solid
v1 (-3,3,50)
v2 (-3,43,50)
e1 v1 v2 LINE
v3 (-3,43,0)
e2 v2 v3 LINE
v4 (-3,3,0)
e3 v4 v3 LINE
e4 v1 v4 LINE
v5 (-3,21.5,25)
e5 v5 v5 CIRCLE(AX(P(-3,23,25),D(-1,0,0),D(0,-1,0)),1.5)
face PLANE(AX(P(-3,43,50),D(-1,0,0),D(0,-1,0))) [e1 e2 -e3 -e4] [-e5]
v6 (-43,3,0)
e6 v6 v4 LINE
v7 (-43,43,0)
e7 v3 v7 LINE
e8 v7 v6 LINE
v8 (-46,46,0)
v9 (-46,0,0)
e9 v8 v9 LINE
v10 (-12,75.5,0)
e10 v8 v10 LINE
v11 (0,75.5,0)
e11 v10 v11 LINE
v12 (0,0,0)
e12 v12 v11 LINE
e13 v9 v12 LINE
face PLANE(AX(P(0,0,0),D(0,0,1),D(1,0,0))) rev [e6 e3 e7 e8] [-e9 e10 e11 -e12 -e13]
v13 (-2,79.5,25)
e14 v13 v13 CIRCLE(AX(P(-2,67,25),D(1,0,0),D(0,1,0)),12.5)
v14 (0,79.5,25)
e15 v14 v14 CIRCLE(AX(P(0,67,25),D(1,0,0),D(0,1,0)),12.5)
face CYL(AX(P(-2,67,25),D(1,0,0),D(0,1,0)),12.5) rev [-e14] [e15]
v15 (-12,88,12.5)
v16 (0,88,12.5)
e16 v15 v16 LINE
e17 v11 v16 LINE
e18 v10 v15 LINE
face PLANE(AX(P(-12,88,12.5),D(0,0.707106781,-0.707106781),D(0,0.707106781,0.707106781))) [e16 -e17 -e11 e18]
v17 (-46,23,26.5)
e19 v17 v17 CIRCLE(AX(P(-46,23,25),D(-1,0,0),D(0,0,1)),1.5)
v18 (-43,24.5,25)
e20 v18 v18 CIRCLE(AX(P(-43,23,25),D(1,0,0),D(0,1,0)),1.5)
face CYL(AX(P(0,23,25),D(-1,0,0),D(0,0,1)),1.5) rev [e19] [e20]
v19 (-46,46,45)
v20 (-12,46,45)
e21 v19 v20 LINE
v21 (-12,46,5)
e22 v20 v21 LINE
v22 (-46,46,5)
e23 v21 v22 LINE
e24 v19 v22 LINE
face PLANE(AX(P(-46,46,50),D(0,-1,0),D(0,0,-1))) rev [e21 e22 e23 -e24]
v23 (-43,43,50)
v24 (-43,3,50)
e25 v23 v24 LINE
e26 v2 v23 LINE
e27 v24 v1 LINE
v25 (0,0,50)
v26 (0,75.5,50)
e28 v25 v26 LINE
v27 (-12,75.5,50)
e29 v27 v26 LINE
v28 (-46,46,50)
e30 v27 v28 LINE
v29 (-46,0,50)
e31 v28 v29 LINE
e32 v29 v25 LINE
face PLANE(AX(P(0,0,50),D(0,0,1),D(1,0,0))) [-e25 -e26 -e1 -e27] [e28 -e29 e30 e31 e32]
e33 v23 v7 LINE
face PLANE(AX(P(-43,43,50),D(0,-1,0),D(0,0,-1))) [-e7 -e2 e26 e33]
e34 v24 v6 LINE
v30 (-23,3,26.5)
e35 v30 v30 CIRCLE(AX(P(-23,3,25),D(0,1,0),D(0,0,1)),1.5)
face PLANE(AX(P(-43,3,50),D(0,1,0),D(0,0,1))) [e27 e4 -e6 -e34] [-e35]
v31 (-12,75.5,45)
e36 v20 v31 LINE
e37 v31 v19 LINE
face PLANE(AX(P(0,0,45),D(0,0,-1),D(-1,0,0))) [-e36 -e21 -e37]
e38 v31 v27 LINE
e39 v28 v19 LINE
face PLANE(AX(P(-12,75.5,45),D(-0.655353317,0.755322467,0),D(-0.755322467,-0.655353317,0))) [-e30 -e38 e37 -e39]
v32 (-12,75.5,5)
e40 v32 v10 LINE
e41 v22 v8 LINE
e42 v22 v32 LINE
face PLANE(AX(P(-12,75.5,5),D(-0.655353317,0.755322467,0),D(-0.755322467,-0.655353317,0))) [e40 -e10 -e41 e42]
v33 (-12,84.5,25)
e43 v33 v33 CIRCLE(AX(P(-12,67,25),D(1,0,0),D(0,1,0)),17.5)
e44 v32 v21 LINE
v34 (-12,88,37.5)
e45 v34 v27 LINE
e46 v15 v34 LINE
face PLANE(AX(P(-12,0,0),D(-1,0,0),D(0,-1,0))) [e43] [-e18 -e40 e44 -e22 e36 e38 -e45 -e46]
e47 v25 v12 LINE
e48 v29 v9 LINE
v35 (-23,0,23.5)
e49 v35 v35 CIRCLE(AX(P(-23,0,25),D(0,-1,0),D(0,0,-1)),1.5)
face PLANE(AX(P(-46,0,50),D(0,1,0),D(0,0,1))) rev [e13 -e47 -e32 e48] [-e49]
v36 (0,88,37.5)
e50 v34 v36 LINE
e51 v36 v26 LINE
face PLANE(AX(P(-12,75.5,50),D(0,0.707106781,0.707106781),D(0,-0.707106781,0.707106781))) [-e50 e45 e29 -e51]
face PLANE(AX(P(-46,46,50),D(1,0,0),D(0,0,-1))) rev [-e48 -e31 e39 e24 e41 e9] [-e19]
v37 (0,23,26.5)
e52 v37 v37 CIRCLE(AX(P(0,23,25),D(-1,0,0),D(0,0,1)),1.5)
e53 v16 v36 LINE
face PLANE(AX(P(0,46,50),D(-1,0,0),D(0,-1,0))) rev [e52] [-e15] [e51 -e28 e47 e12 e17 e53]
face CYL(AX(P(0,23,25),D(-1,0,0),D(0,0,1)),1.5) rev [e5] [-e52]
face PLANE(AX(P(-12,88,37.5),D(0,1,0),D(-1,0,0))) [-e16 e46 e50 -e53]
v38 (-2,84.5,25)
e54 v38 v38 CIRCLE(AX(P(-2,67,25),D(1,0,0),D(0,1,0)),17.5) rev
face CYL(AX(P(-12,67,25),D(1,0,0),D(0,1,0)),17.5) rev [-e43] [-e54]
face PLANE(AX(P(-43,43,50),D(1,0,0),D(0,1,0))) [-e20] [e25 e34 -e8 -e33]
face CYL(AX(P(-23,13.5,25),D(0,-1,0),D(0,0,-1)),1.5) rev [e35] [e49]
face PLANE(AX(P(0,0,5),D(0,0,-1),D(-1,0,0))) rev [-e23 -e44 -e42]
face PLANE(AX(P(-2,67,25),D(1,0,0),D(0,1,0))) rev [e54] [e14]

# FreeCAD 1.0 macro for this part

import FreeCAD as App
import Part
import Sketcher
from FreeCAD import Vector

doc = App.newDocument("Part")
params = doc.addObject("Spreadsheet::Sheet", "Params")
for row, (alias, value) in enumerate([
    ("sketch1_width", "46 mm"),
    ("sketch1_width2", "40 mm"),
    ("pad1_length", "50 mm"),
    ("sketch2_diameter", "3 mm"),
    ("sketch3_diameter", "3 mm"),
    ("pocket2_length", "13.5 mm"),
    ("sketch4_diameter", "35 mm"),
    ("sketch4_height", "50 mm"),
    ("sketch4_height2", "25 mm"),
    ("sketch4_width", "29.5 mm"),
    ("pad2_length", "12 mm"),
    ("sketch5_diameter", "35 mm"),
    ("sketch5_diameter2", "25 mm"),
    ("pad3_length", "2 mm"),
    ("sketch6_width", "34 mm"),
    ("sketch6_height", "29.5 mm"),
    ("pad4_length", "5 mm"),
    ("sketch7_width", "34 mm"),
    ("sketch7_height", "29.5 mm"),
    ("pad5_length", "5 mm"),
], start=1):
    params.set(f"A{row}", alias)
    params.set(f"B{row}", "=" + value)
    params.setAlias(f"B{row}", alias)

body = doc.addObject("PartDesign::Body", "Body")

# Sketch on XY plane
sketch1 = doc.addObject("Sketcher::SketchObject", "Sketch")
body.addObject(sketch1)
sketch1.AttachmentSupport = (doc.XY_Plane, [""])
sketch1.MapMode = "FlatFace"
sketch1.addGeometry(Part.LineSegment(Vector(-46, 46, 0), Vector(-46, 0, 0)), False)
sketch1.addGeometry(Part.LineSegment(Vector(-46, 0, 0), Vector(0, 0, 0)), False)
sketch1.addGeometry(Part.LineSegment(Vector(0, 0, 0), Vector(0, 46, 0)), False)
sketch1.addGeometry(Part.LineSegment(Vector(0, 46, 0), Vector(-46, 46, 0)), False)
sketch1.addGeometry(Part.LineSegment(Vector(-3, 3, 0), Vector(-43, 3, 0)), False)
sketch1.addGeometry(Part.LineSegment(Vector(-43, 3, 0), Vector(-43, 43, 0)), False)
sketch1.addGeometry(Part.LineSegment(Vector(-43, 43, 0), Vector(-3, 43, 0)), False)
sketch1.addGeometry(Part.LineSegment(Vector(-3, 43, 0), Vector(-3, 3, 0)), False)
sketch1.addConstraint(Sketcher.Constraint("Coincident", 0, 2, 1, 1))
sketch1.addConstraint(Sketcher.Constraint("Coincident", 1, 2, 2, 1))
sketch1.addConstraint(Sketcher.Constraint("Coincident", 2, 2, 3, 1))
sketch1.addConstraint(Sketcher.Constraint("Coincident", 3, 2, 0, 1))
sketch1.addConstraint(Sketcher.Constraint("Coincident", 4, 2, 5, 1))
sketch1.addConstraint(Sketcher.Constraint("Coincident", 5, 2, 6, 1))
sketch1.addConstraint(Sketcher.Constraint("Coincident", 6, 2, 7, 1))
sketch1.addConstraint(Sketcher.Constraint("Coincident", 7, 2, 4, 1))
sketch1.addConstraint(Sketcher.Constraint("Vertical", 0))
sketch1.addConstraint(Sketcher.Constraint("Horizontal", 1))
sketch1.addConstraint(Sketcher.Constraint("Vertical", 2))
sketch1.addConstraint(Sketcher.Constraint("Horizontal", 3))
sketch1.addConstraint(Sketcher.Constraint("Horizontal", 4))
sketch1.addConstraint(Sketcher.Constraint("Vertical", 5))
sketch1.addConstraint(Sketcher.Constraint("Horizontal", 6))
sketch1.addConstraint(Sketcher.Constraint("Vertical", 7))
sketch1.addConstraint(Sketcher.Constraint("Coincident", 1, 2, -1, 1))
sketch1.addConstraint(Sketcher.Constraint("Equal", 3, 0))
sketch1.addConstraint(Sketcher.Constraint("Equal", 6, 5))
sketch1.addConstraint(Sketcher.Constraint("DistanceX", 1, 1, 1, 2, 46.0))
sketch1.addConstraint(Sketcher.Constraint("DistanceX", 4, 2, 4, 1, 40.0))
sketch1.addConstraint(Sketcher.Constraint("DistanceX", 4, 2, -1, 1, 43.0))
sketch1.addConstraint(Sketcher.Constraint("DistanceY", -1, 1, 4, 2, 3.0))
sketch1.setExpression("Constraints[19]", "Params.sketch1_width")
sketch1.setExpression("Constraints[20]", "Params.sketch1_width2")
pad1 = doc.addObject("PartDesign::Pad", "Pad")
body.addObject(pad1)
pad1.Profile = sketch1
pad1.setExpression("Length", "Params.pad1_length")

# Sketch on YZ plane
sketch2 = doc.addObject("Sketcher::SketchObject", "Sketch001")
body.addObject(sketch2)
sketch2.AttachmentSupport = (doc.YZ_Plane, [""])
sketch2.MapMode = "FlatFace"
sketch2.AttachmentOffset = App.Placement(Vector(0, 0, -46), App.Rotation())
sketch2.addGeometry(Part.Circle(Vector(23, 25, 0), Vector(0, 0, 1), 1.5), False)
sketch2.addConstraint(Sketcher.Constraint("Diameter", 0, 3.0))
sketch2.addConstraint(Sketcher.Constraint("DistanceX", -1, 1, 0, 3, 23.0))
sketch2.addConstraint(Sketcher.Constraint("DistanceY", -1, 1, 0, 3, 25.0))
sketch2.setExpression("Constraints[0]", "Params.sketch2_diameter")
pocket1 = doc.addObject("PartDesign::Pocket", "Pocket")
body.addObject(pocket1)
pocket1.Profile = sketch2
pocket1.Type = "ThroughAll"
pocket1.Reversed = True

# Sketch on XZ plane
sketch3 = doc.addObject("Sketcher::SketchObject", "Sketch002")
body.addObject(sketch3)
sketch3.AttachmentSupport = (doc.XZ_Plane, [""])
sketch3.MapMode = "FlatFace"
sketch3.addGeometry(Part.Circle(Vector(-23, 25, 0), Vector(0, 0, 1), 1.5), False)
sketch3.addConstraint(Sketcher.Constraint("Diameter", 0, 3.0))
sketch3.addConstraint(Sketcher.Constraint("DistanceX", 0, 3, -1, 1, 23.0))
sketch3.addConstraint(Sketcher.Constraint("DistanceY", -1, 1, 0, 3, 25.0))
sketch3.setExpression("Constraints[0]", "Params.sketch3_diameter")
pocket2 = doc.addObject("PartDesign::Pocket", "Pocket001")
body.addObject(pocket2)
pocket2.Profile = sketch3
pocket2.setExpression("Length", "Params.pocket2_length")

# Sketch on YZ plane
sketch4 = doc.addObject("Sketcher::SketchObject", "Sketch003")
body.addObject(sketch4)
sketch4.AttachmentSupport = (doc.YZ_Plane, [""])
sketch4.MapMode = "FlatFace"
sketch4.addGeometry(Part.LineSegment(Vector(76, 50, 0), Vector(46, 50, 0)), False)
sketch4.addGeometry(Part.LineSegment(Vector(46, 50, 0), Vector(46, 0, 0)), False)
sketch4.addGeometry(Part.LineSegment(Vector(46, 0, 0), Vector(76, 0, 0)), False)
sketch4.addGeometry(Part.LineSegment(Vector(76, 0, 0), Vector(88, 12, 0)), False)
sketch4.addGeometry(Part.LineSegment(Vector(88, 12, 0), Vector(88, 38, 0)), False)
sketch4.addGeometry(Part.LineSegment(Vector(88, 38, 0), Vector(76, 50, 0)), False)
sketch4.addGeometry(Part.Circle(Vector(67, 25, 0), Vector(0, 0, 1), 18), False)
sketch4.addConstraint(Sketcher.Constraint("Coincident", 0, 2, 1, 1))
sketch4.addConstraint(Sketcher.Constraint("Coincident", 1, 2, 2, 1))
sketch4.addConstraint(Sketcher.Constraint("Coincident", 2, 2, 3, 1))
sketch4.addConstraint(Sketcher.Constraint("Coincident", 3, 2, 4, 1))
sketch4.addConstraint(Sketcher.Constraint("Coincident", 4, 2, 5, 1))
sketch4.addConstraint(Sketcher.Constraint("Coincident", 5, 2, 0, 1))
sketch4.addConstraint(Sketcher.Constraint("Horizontal", 0))
sketch4.addConstraint(Sketcher.Constraint("Vertical", 1))
sketch4.addConstraint(Sketcher.Constraint("Horizontal", 2))
sketch4.addConstraint(Sketcher.Constraint("Vertical", 4))
sketch4.addConstraint(Sketcher.Constraint("PointOnObject", 1, 2, -1))
sketch4.addConstraint(Sketcher.Constraint("Perpendicular", 3, 5))
sketch4.addConstraint(Sketcher.Constraint("Vertical", 2, 2, 5, 2))
sketch4.addConstraint(Sketcher.Constraint("Equal", 3, 5))
sketch4.addConstraint(Sketcher.Constraint("Diameter", 6, 35.0))
sketch4.addConstraint(Sketcher.Constraint("DistanceY", 1, 2, 1, 1, 50.0))
sketch4.addConstraint(Sketcher.Constraint("DistanceY", 4, 1, 4, 2, 25.0))
sketch4.addConstraint(Sketcher.Constraint("DistanceX", 0, 2, 0, 1, 29.5))
sketch4.addConstraint(Sketcher.Constraint("DistanceX", -1, 1, 6, 3, 67.0))
sketch4.addConstraint(Sketcher.Constraint("DistanceY", -1, 1, 6, 3, 25.0))
sketch4.addConstraint(Sketcher.Constraint("DistanceX", -1, 1, 0, 2, 46.0))
sketch4.setExpression("Constraints[14]", "Params.sketch4_diameter")
sketch4.setExpression("Constraints[15]", "Params.sketch4_height")
sketch4.setExpression("Constraints[16]", "Params.sketch4_height2")
sketch4.setExpression("Constraints[17]", "Params.sketch4_width")
pad2 = doc.addObject("PartDesign::Pad", "Pad001")
body.addObject(pad2)
pad2.Profile = sketch4
pad2.setExpression("Length", "Params.pad2_length")
pad2.Reversed = True

# Sketch on YZ plane
sketch5 = doc.addObject("Sketcher::SketchObject", "Sketch004")
body.addObject(sketch5)
sketch5.AttachmentSupport = (doc.YZ_Plane, [""])
sketch5.MapMode = "FlatFace"
sketch5.addGeometry(Part.Circle(Vector(67, 25, 0), Vector(0, 0, 1), 18), False)
sketch5.addGeometry(Part.Circle(Vector(67, 25, 0), Vector(0, 0, 1), 12), False)
sketch5.addConstraint(Sketcher.Constraint("Coincident", 1, 3, 0, 3))
sketch5.addConstraint(Sketcher.Constraint("Diameter", 0, 35.0))
sketch5.addConstraint(Sketcher.Constraint("Diameter", 1, 25.0))
sketch5.addConstraint(Sketcher.Constraint("DistanceX", -1, 1, 0, 3, 67.0))
sketch5.addConstraint(Sketcher.Constraint("DistanceY", -1, 1, 0, 3, 25.0))
sketch5.setExpression("Constraints[1]", "Params.sketch5_diameter")
sketch5.setExpression("Constraints[2]", "Params.sketch5_diameter2")
pad3 = doc.addObject("PartDesign::Pad", "Pad002")
body.addObject(pad3)
pad3.Profile = sketch5
pad3.setExpression("Length", "Params.pad3_length")
pad3.Reversed = True

# Sketch on XY plane
sketch6 = doc.addObject("Sketcher::SketchObject", "Sketch005")
body.addObject(sketch6)
sketch6.AttachmentSupport = (doc.XY_Plane, [""])
sketch6.MapMode = "FlatFace"
sketch6.addGeometry(Part.LineSegment(Vector(-46, 46, 0), Vector(-12, 76, 0)), False)
sketch6.addGeometry(Part.LineSegment(Vector(-12, 76, 0), Vector(-12, 46, 0)), False)
sketch6.addGeometry(Part.LineSegment(Vector(-12, 46, 0), Vector(-46, 46, 0)), False)
sketch6.addConstraint(Sketcher.Constraint("Coincident", 0, 2, 1, 1))
sketch6.addConstraint(Sketcher.Constraint("Coincident", 1, 2, 2, 1))
sketch6.addConstraint(Sketcher.Constraint("Coincident", 2, 2, 0, 1))
sketch6.addConstraint(Sketcher.Constraint("Vertical", 1))
sketch6.addConstraint(Sketcher.Constraint("Horizontal", 2))
sketch6.addConstraint(Sketcher.Constraint("DistanceX", 2, 2, 2, 1, 34.0))
sketch6.addConstraint(Sketcher.Constraint("DistanceY", 1, 2, 1, 1, 29.5))
sketch6.addConstraint(Sketcher.Constraint("DistanceX", 0, 2, -1, 1, 12.0))
sketch6.addConstraint(Sketcher.Constraint("DistanceY", -1, 1, 1, 2, 46.0))
sketch6.setExpression("Constraints[5]", "Params.sketch6_width")
sketch6.setExpression("Constraints[6]", "Params.sketch6_height")
pad4 = doc.addObject("PartDesign::Pad", "Pad003")
body.addObject(pad4)
pad4.Profile = sketch6
pad4.setExpression("Length", "Params.pad4_length")

# Sketch on XY plane
sketch7 = doc.addObject("Sketcher::SketchObject", "Sketch006")
body.addObject(sketch7)
sketch7.AttachmentSupport = (doc.XY_Plane, [""])
sketch7.MapMode = "FlatFace"
sketch7.AttachmentOffset = App.Placement(Vector(0, 0, 50), App.Rotation())
sketch7.addGeometry(Part.LineSegment(Vector(-12, 76, 0), Vector(-46, 46, 0)), False)
sketch7.addGeometry(Part.LineSegment(Vector(-46, 46, 0), Vector(-12, 46, 0)), False)
sketch7.addGeometry(Part.LineSegment(Vector(-12, 46, 0), Vector(-12, 76, 0)), False)
sketch7.addConstraint(Sketcher.Constraint("Coincident", 0, 2, 1, 1))
sketch7.addConstraint(Sketcher.Constraint("Coincident", 1, 2, 2, 1))
sketch7.addConstraint(Sketcher.Constraint("Coincident", 2, 2, 0, 1))
sketch7.addConstraint(Sketcher.Constraint("Horizontal", 1))
sketch7.addConstraint(Sketcher.Constraint("Vertical", 2))
sketch7.addConstraint(Sketcher.Constraint("DistanceX", 1, 1, 1, 2, 34.0))
sketch7.addConstraint(Sketcher.Constraint("DistanceY", 2, 1, 2, 2, 29.5))
sketch7.addConstraint(Sketcher.Constraint("DistanceX", 0, 2, -1, 1, 46.0))
sketch7.addConstraint(Sketcher.Constraint("DistanceY", -1, 1, 0, 2, 46.0))
sketch7.setExpression("Constraints[5]", "Params.sketch7_width")
sketch7.setExpression("Constraints[6]", "Params.sketch7_height")
pad5 = doc.addObject("PartDesign::Pad", "Pad004")
body.addObject(pad5)
pad5.Profile = sketch7
pad5.setExpression("Length", "Params.pad5_length")
pad5.Reversed = True

doc.recompute()
